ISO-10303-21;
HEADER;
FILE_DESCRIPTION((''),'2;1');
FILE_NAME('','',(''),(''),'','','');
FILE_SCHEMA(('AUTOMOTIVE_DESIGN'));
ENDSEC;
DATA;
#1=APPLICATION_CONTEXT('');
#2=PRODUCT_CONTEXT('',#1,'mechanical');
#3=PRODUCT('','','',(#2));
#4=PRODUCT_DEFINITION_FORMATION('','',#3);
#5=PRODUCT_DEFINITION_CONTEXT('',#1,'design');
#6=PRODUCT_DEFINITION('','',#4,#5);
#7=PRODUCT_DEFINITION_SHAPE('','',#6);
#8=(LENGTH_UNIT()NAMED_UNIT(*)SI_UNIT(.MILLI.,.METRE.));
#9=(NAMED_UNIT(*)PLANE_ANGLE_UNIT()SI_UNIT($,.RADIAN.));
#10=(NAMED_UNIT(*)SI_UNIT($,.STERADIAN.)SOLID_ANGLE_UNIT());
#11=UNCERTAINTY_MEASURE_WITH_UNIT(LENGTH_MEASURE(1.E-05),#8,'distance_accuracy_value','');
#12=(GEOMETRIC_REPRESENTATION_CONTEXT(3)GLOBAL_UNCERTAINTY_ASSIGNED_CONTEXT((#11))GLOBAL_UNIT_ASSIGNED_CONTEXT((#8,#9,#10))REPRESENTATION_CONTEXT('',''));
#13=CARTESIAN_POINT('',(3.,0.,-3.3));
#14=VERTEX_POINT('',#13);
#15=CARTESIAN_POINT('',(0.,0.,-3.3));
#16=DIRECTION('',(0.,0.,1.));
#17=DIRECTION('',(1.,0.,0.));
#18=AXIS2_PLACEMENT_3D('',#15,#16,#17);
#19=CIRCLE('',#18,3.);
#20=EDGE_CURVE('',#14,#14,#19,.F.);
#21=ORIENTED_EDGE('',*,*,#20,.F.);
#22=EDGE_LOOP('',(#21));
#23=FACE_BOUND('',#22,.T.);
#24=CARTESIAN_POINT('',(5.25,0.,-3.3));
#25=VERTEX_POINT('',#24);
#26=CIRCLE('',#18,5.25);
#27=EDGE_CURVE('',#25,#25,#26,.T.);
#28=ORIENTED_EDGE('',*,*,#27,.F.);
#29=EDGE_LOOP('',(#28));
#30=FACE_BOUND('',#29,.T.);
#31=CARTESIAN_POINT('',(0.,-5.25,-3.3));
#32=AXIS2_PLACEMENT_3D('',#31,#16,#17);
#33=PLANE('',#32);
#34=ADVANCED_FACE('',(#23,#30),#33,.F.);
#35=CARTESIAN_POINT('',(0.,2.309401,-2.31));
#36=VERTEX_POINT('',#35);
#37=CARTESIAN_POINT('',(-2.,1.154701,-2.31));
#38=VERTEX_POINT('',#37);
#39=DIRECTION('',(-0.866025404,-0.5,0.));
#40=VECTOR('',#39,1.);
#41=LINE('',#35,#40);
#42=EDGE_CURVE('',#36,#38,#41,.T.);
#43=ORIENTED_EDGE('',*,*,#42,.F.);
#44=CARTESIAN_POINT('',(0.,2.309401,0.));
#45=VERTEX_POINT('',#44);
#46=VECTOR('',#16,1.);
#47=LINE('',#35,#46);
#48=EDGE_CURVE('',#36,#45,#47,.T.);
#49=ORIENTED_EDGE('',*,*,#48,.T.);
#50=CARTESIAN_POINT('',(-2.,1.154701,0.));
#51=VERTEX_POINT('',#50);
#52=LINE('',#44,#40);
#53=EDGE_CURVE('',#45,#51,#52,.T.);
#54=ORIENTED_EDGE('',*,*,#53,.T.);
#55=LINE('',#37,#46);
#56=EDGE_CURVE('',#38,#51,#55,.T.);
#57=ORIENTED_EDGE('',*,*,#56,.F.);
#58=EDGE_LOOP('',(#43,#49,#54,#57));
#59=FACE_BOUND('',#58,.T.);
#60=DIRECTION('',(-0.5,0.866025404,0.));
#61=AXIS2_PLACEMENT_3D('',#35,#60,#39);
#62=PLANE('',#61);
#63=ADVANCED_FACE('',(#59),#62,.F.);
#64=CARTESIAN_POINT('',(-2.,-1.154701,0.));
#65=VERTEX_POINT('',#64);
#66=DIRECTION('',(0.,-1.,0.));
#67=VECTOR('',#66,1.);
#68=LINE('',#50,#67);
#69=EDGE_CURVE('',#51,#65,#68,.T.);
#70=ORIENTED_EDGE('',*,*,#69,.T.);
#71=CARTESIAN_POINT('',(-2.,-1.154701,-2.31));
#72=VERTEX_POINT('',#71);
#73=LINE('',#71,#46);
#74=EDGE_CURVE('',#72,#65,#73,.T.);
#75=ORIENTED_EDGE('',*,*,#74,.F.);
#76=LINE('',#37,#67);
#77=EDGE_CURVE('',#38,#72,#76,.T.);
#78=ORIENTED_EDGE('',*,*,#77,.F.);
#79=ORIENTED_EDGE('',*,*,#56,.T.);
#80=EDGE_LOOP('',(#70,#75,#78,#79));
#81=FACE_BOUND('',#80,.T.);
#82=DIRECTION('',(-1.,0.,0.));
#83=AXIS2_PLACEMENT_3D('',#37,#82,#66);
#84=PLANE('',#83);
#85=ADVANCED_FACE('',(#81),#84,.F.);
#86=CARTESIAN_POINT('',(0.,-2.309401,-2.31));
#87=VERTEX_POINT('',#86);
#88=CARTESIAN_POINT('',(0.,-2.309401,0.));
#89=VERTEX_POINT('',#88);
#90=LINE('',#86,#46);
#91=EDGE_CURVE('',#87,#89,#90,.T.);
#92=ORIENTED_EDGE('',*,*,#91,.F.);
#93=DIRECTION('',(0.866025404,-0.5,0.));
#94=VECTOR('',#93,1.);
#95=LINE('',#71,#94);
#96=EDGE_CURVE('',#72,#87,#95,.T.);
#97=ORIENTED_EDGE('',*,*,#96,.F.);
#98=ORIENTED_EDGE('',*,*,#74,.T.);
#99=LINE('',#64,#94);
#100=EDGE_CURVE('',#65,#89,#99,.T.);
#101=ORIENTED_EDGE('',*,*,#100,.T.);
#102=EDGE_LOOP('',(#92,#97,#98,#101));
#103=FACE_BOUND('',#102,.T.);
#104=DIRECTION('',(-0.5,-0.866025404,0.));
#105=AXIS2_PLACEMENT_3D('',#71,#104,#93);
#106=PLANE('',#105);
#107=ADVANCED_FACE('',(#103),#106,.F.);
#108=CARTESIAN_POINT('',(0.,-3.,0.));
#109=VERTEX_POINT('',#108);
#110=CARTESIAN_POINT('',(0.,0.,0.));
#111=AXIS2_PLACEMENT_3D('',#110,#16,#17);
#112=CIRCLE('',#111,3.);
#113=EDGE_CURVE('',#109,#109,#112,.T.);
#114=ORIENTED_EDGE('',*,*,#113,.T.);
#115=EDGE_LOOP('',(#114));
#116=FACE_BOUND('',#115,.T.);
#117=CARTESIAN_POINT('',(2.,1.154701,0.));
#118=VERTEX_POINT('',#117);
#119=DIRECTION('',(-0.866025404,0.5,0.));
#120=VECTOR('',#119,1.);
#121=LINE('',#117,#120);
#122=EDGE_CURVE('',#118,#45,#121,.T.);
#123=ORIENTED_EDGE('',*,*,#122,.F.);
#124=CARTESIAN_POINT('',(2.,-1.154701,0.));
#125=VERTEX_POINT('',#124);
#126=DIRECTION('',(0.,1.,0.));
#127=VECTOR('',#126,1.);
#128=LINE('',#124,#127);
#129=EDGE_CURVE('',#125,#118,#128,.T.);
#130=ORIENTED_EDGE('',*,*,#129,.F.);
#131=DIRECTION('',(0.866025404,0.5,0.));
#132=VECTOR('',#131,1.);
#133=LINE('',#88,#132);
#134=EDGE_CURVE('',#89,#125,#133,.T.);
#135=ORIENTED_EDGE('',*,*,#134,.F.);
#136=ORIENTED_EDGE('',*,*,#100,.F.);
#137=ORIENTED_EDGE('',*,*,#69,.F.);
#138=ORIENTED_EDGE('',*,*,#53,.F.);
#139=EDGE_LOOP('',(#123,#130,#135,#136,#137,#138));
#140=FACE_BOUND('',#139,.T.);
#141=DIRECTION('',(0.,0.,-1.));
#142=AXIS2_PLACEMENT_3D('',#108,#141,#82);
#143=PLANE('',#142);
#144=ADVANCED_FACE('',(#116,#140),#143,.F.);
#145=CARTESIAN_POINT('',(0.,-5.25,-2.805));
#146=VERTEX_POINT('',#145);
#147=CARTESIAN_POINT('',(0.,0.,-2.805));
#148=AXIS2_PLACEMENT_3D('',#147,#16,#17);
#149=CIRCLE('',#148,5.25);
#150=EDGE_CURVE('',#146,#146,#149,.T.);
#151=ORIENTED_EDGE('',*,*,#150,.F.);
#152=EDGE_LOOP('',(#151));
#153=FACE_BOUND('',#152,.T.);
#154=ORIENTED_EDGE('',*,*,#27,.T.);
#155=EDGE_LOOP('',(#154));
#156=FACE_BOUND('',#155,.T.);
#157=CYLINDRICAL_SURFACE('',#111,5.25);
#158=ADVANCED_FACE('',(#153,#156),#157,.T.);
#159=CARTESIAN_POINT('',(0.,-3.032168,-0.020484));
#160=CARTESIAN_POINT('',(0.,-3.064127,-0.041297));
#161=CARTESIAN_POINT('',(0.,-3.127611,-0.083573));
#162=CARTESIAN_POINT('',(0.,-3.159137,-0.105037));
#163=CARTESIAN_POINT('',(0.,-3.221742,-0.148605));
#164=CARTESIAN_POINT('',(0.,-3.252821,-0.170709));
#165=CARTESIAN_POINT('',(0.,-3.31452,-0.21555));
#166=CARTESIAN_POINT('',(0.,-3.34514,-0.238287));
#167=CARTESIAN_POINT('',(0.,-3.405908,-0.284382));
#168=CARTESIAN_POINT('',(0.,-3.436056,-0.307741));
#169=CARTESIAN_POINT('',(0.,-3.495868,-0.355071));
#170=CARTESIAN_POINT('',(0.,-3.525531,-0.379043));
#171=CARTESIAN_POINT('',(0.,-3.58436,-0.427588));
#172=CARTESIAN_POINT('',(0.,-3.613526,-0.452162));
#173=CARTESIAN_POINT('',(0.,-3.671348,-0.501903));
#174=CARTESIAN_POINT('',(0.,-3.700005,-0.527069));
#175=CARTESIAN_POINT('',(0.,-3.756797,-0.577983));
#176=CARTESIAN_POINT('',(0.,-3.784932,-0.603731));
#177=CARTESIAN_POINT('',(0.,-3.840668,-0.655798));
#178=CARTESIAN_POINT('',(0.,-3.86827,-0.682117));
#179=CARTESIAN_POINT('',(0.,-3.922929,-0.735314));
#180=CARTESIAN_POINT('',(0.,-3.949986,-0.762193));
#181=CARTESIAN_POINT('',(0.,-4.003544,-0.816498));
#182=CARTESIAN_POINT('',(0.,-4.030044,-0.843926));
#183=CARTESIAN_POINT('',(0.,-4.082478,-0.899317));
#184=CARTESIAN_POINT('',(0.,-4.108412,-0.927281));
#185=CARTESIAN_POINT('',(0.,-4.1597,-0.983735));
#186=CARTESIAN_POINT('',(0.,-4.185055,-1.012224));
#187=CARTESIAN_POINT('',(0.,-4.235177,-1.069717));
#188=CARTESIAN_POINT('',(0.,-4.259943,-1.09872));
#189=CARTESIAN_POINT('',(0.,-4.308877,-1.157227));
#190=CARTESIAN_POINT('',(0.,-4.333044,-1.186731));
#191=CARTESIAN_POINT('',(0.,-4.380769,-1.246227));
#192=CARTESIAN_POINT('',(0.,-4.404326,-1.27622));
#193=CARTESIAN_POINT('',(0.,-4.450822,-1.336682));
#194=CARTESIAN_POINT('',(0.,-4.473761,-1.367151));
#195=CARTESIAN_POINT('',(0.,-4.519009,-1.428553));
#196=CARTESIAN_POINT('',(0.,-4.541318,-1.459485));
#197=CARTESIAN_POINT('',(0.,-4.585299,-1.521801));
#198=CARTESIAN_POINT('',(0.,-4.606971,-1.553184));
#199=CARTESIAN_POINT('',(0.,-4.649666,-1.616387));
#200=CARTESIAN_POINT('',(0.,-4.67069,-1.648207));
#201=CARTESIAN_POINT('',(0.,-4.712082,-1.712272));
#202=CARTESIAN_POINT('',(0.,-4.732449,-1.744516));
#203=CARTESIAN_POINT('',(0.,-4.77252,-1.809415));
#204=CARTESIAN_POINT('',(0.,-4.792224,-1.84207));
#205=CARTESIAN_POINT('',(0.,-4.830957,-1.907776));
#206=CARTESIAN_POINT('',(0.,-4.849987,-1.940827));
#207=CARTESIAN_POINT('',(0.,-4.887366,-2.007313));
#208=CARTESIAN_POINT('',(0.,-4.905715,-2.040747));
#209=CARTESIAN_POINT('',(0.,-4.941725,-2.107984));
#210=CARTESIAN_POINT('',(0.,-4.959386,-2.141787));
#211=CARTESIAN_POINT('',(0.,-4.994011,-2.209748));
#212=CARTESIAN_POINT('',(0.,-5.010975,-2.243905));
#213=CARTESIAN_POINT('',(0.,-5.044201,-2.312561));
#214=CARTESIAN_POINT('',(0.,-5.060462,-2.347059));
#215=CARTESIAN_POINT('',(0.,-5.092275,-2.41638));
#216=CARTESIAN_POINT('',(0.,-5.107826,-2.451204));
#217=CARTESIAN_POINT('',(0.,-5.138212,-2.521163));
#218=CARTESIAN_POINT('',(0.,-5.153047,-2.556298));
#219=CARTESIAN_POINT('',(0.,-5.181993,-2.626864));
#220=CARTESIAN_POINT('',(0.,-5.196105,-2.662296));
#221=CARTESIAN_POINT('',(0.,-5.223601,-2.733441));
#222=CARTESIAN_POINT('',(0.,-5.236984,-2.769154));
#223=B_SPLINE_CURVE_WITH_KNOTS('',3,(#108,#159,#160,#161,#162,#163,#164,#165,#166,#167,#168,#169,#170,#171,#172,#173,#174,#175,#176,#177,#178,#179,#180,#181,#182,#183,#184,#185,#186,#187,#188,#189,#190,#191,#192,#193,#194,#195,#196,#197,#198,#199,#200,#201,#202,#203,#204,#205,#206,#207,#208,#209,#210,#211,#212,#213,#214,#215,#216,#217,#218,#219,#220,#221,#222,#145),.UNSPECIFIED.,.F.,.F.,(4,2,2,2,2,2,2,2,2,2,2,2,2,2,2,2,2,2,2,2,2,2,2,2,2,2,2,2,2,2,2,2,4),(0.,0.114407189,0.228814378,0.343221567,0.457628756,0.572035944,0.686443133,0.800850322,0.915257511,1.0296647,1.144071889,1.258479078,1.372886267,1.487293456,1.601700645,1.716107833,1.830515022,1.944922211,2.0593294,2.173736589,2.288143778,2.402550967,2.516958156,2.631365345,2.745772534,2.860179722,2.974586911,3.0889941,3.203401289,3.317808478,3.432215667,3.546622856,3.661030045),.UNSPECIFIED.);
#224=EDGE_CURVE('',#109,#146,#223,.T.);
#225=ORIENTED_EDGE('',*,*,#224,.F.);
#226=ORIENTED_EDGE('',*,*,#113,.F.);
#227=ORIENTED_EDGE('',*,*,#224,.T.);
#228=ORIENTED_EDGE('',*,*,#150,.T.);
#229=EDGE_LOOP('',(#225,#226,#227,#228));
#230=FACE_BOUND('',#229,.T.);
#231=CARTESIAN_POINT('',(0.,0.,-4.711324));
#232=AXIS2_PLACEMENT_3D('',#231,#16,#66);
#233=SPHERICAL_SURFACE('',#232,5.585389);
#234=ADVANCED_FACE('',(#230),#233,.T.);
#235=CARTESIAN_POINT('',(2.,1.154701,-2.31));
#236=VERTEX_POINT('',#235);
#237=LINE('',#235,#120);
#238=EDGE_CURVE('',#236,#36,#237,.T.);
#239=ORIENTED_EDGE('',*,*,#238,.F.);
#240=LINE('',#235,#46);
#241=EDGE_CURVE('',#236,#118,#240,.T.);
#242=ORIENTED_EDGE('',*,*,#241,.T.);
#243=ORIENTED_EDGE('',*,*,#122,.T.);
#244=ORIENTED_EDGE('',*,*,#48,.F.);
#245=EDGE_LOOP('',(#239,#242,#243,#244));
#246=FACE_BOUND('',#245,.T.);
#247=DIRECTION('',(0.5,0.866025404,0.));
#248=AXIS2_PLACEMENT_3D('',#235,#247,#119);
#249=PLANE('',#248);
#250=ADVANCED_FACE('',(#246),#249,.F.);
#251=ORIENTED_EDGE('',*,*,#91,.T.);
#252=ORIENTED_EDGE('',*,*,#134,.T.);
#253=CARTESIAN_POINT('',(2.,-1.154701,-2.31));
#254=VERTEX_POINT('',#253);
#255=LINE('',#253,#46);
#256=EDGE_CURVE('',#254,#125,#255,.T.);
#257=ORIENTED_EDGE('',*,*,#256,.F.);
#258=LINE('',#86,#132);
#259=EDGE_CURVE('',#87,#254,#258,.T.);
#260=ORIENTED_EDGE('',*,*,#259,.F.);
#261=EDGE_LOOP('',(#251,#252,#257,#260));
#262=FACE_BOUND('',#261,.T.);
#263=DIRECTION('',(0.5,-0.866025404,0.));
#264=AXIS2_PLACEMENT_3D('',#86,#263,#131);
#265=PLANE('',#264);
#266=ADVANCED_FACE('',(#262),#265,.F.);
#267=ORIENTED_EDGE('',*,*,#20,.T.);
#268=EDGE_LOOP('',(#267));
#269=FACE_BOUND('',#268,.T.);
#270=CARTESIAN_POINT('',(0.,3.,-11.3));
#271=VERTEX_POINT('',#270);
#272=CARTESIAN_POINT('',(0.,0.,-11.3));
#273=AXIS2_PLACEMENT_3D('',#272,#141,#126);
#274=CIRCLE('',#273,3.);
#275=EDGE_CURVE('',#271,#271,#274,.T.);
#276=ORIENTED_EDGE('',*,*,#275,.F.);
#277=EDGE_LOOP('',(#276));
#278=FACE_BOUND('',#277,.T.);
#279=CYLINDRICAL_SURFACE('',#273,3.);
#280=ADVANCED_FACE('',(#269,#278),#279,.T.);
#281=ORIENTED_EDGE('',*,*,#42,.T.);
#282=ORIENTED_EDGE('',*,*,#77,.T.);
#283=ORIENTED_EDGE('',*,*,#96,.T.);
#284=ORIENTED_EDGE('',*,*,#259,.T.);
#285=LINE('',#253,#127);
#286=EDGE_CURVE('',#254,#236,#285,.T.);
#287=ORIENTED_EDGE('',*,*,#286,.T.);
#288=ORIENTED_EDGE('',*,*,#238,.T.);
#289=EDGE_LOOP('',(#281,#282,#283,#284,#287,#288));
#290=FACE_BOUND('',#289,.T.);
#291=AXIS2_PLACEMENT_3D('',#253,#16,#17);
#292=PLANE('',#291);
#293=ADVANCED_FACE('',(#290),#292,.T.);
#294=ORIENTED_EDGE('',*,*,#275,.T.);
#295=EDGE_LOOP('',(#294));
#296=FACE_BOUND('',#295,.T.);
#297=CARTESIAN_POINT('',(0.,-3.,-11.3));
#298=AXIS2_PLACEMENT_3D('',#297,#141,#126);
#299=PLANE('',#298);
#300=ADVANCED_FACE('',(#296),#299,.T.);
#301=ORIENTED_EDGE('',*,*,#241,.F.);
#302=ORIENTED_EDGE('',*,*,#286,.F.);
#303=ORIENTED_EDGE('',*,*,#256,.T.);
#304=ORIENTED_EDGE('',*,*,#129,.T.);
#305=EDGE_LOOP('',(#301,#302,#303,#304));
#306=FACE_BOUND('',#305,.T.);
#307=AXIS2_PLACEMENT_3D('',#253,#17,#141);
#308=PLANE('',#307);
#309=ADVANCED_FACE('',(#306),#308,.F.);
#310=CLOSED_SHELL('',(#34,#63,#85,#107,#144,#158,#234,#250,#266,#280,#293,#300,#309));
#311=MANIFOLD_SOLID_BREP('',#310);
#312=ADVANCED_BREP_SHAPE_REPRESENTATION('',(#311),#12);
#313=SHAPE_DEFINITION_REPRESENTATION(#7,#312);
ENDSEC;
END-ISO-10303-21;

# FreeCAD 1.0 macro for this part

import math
import FreeCAD as App
import Part
import Sketcher
Q = App.Units.Quantity

doc = App.newDocument("Part")
body = doc.addObject("PartDesign::Body", "Body")

sketch1 = doc.addObject("Sketcher::SketchObject", "Sketch")
body.addObject(sketch1)
sketch1.AttachmentSupport = (doc.YZ_Plane, [""])
sketch1.MapMode = "FlatFace"
sketch1.addGeometry(Part.LineSegment(App.Vector(3, -3.3, 0), App.Vector(0, -3.3, 0)), False)
sketch1.addGeometry(Part.LineSegment(App.Vector(0, -3.3, 0), App.Vector(0, -11.3, 0)), False)
sketch1.addGeometry(Part.LineSegment(App.Vector(0, -11.3, 0), App.Vector(3, -11.3, 0)), False)
sketch1.addGeometry(Part.LineSegment(App.Vector(3, -11.3, 0), App.Vector(3, -3.3, 0)), False)
sketch1.addConstraint(Sketcher.Constraint("Coincident", 0, 2, 1, 1))
sketch1.addConstraint(Sketcher.Constraint("Coincident", 1, 2, 2, 1))
sketch1.addConstraint(Sketcher.Constraint("Coincident", 2, 2, 3, 1))
sketch1.addConstraint(Sketcher.Constraint("Coincident", 3, 2, 0, 1))
sketch1.addConstraint(Sketcher.Constraint("Horizontal", 0))
sketch1.addConstraint(Sketcher.Constraint("Vertical", 1))
sketch1.addConstraint(Sketcher.Constraint("Horizontal", 2))
sketch1.addConstraint(Sketcher.Constraint("Vertical", 3))
sketch1.addConstraint(Sketcher.Constraint("PointOnObject", 0, 2, -2))
sketch1.addConstraint(Sketcher.Constraint("DistanceX", 0, 2, 0, 1, Q("3 mm")))
sketch1.addConstraint(Sketcher.Constraint("DistanceY", 1, 2, 1, 1, Q("8 mm")))
sketch1.addConstraint(Sketcher.Constraint("DistanceY", 0, 2, -1, 1, Q("3.3 mm")))
revolution = doc.addObject("PartDesign::Revolution", "Revolution")
body.addObject(revolution)
revolution.Profile = sketch1
revolution.ReferenceAxis = (sketch1, ["V_Axis"])
revolution.Angle = 360

sketch2 = doc.addObject("Sketcher::SketchObject", "Sketch001")
body.addObject(sketch2)
sketch2.AttachmentSupport = (doc.YZ_Plane, [""])
sketch2.MapMode = "FlatFace"
sketch2.addGeometry(Part.LineSegment(App.Vector(5.25, -3.3, 0), App.Vector(5.25, -2.81, 0)), False)
sketch2.addGeometry(Part.ArcOfCircle(Part.Circle(App.Vector(0, -4.71, 0), App.Vector(0, 0, 1), 5.59), math.radians(20), math.radians(58)), False)
sketch2.addGeometry(Part.LineSegment(App.Vector(3, 0, 0), App.Vector(0, 0, 0)), False)
sketch2.addGeometry(Part.LineSegment(App.Vector(0, 0, 0), App.Vector(0, -3.3, 0)), False)
sketch2.addGeometry(Part.LineSegment(App.Vector(0, -3.3, 0), App.Vector(5.25, -3.3, 0)), False)
sketch2.addConstraint(Sketcher.Constraint("Coincident", 0, 2, 1, 1))
sketch2.addConstraint(Sketcher.Constraint("Coincident", 1, 2, 2, 1))
sketch2.addConstraint(Sketcher.Constraint("Coincident", 2, 2, 3, 1))
sketch2.addConstraint(Sketcher.Constraint("Coincident", 3, 2, 4, 1))
sketch2.addConstraint(Sketcher.Constraint("Coincident", 4, 2, 0, 1))
sketch2.addConstraint(Sketcher.Constraint("Vertical", 0))
sketch2.addConstraint(Sketcher.Constraint("Horizontal", 2))
sketch2.addConstraint(Sketcher.Constraint("Vertical", 3))
sketch2.addConstraint(Sketcher.Constraint("Horizontal", 4))
sketch2.addConstraint(Sketcher.Constraint("Coincident", 2, 2, -1, 1))
sketch2.addConstraint(Sketcher.Constraint("PointOnObject", 1, 3, -2))
sketch2.addConstraint(Sketcher.Constraint("DistanceX", 2, 2, 2, 1, Q("3 mm")))
sketch2.addConstraint(Sketcher.Constraint("DistanceY", 3, 2, 3, 1, Q("3.3 mm")))
sketch2.addConstraint(Sketcher.Constraint("DistanceX", 4, 1, 4, 2, Q("5.25 mm")))
sketch2.addConstraint(Sketcher.Constraint("DistanceY", 0, 1, 0, 2, Q("0.495 mm")))
revolution2 = doc.addObject("PartDesign::Revolution", "Revolution001")
body.addObject(revolution2)
revolution2.Profile = sketch2
revolution2.ReferenceAxis = (sketch2, ["V_Axis"])
revolution2.Angle = 360

sketch3 = doc.addObject("Sketcher::SketchObject", "Sketch002")
body.addObject(sketch3)
sketch3.AttachmentSupport = (doc.XY_Plane, [""])
sketch3.MapMode = "FlatFace"
sketch3.addGeometry(Part.LineSegment(App.Vector(2, -1.2, 0), App.Vector(2, 1.2, 0)), False)
sketch3.addGeometry(Part.LineSegment(App.Vector(2, 1.2, 0), App.Vector(0, 2.3, 0)), False)
sketch3.addGeometry(Part.LineSegment(App.Vector(0, 2.3, 0), App.Vector(-2, 1.2, 0)), False)
sketch3.addGeometry(Part.LineSegment(App.Vector(-2, 1.2, 0), App.Vector(-2, -1.2, 0)), False)
sketch3.addGeometry(Part.LineSegment(App.Vector(-2, -1.2, 0), App.Vector(0, -2.3, 0)), False)
sketch3.addGeometry(Part.LineSegment(App.Vector(0, -2.3, 0), App.Vector(2, -1.2, 0)), False)
sketch3.addConstraint(Sketcher.Constraint("Coincident", 0, 2, 1, 1))
sketch3.addConstraint(Sketcher.Constraint("Coincident", 1, 2, 2, 1))
sketch3.addConstraint(Sketcher.Constraint("Coincident", 2, 2, 3, 1))
sketch3.addConstraint(Sketcher.Constraint("Coincident", 3, 2, 4, 1))
sketch3.addConstraint(Sketcher.Constraint("Coincident", 4, 2, 5, 1))
sketch3.addConstraint(Sketcher.Constraint("Coincident", 5, 2, 0, 1))
sketch3.addConstraint(Sketcher.Constraint("Vertical", 0))
sketch3.addConstraint(Sketcher.Constraint("Vertical", 3))
sketch3.addConstraint(Sketcher.Constraint("Symmetric", 0, 2, 3, 2, -1, 1))
sketch3.addConstraint(Sketcher.Constraint("Symmetric", 1, 2, 4, 2, -1, 1))
sketch3.addConstraint(Sketcher.Constraint("PointOnObject", 1, 2, -2))
sketch3.addConstraint(Sketcher.Constraint("Parallel", 2, 5))
sketch3.addConstraint(Sketcher.Constraint("Horizontal", 0, 2, 2, 2))
sketch3.addConstraint(Sketcher.Constraint("Angle", 1, Q("150 deg")))
sketch3.addConstraint(Sketcher.Constraint("DistanceX", -1, 1, 0, 2, Q("2 mm")))
sketch3.addConstraint(Sketcher.Constraint("DistanceY", 0, 1, 0, 2, Q("2.309401 mm")))
pocket1 = doc.addObject("PartDesign::Pocket", "Pocket")
body.addObject(pocket1)
pocket1.Profile = sketch3
pocket1.Length = 2.31

doc.recompute()
